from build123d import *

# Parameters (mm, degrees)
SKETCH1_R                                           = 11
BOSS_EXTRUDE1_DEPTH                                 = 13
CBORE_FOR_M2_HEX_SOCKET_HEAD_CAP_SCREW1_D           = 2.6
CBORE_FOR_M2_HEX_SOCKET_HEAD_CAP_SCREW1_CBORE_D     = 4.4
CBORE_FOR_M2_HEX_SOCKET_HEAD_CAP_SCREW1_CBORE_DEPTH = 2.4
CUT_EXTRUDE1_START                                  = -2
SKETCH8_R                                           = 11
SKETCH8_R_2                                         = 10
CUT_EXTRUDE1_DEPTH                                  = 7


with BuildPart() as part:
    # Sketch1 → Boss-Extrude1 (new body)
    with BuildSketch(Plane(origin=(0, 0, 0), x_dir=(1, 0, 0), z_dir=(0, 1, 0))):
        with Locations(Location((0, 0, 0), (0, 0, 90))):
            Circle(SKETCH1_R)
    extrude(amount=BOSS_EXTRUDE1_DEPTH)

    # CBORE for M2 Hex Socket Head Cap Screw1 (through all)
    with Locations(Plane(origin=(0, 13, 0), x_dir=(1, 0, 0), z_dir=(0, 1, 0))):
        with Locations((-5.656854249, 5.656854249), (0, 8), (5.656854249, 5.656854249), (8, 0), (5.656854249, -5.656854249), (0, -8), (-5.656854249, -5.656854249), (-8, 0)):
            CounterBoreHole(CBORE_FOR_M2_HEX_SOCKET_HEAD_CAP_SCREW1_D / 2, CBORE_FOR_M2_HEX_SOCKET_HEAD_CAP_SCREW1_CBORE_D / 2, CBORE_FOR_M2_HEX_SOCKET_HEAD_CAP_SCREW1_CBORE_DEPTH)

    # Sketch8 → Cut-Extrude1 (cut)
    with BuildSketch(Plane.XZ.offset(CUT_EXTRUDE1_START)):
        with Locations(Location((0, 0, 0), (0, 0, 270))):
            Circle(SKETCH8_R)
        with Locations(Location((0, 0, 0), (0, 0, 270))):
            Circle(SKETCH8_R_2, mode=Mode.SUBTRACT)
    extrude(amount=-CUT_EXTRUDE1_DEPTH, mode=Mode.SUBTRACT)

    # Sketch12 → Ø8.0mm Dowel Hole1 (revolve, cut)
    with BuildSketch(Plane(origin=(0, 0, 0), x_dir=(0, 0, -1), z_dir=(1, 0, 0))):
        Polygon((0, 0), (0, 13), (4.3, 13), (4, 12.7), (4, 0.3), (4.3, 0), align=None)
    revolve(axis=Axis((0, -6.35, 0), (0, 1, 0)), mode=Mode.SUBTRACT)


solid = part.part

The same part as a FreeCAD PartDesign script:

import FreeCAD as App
import Part
import Sketcher


def add_polygon(sketch, points):
    """Adds a closed chain of lines whose ends are joined by coincident constraints."""
    first, n = sketch.GeometryCount, len(points)
    for a, b in zip(points, points[1:] + points[:1]):
        sketch.addGeometry(Part.LineSegment(App.Vector(*a, 0), App.Vector(*b, 0)), False)
    for i in range(n):
        sketch.addConstraint(Sketcher.Constraint("Coincident", first + i, 2, first + (i + 1) % n, 1))

doc = App.newDocument("Part")
params = doc.addObject("Spreadsheet::Sheet", "Params")
for row, (alias, value) in enumerate([
    ("sketch1_diameter", "22 mm"),
    ("pad1_length", "13 mm"),
    ("sketch2_diameter", "2.6 mm"),
    ("hole_diameter", "2.6 mm"),
    ("hole_cbore_diameter", "4.4 mm"),
    ("hole_cbore_depth", "2.4 mm"),
    ("sketch3_diameter", "22 mm"),
    ("sketch3_diameter2", "20 mm"),
    ("pocket1_length", "7 mm"),
    ("sketch4_width", "13 mm"),
    ("sketch4_width2", "12.4 mm"),
    ("sketch4_height", "4.3 mm"),
    ("groove_angle", "360 deg"),
], start=1):
    params.set(f"A{row}", alias)
    params.set(f"B{row}", "=" + value)
    params.setAlias(f"B{row}", alias)

body = doc.addObject("PartDesign::Body", "Body")

# Sketch on XZ plane
sketch1 = body.newObject("Sketcher::SketchObject", "Sketch")
sketch1.AttachmentSupport = (doc.getObject("XZ_Plane"), [""])
sketch1.MapMode = "FlatFace"
sketch1.addGeometry(Part.Circle(App.Vector(0, 0, 0), App.Vector(0, 0, 1), 11), False)
sketch1.addConstraint([
    Sketcher.Constraint("Coincident", 0, 3, -1, 1),
    Sketcher.Constraint("Diameter", 0, 22.0),
])
sketch1.setExpression("Constraints[1]", "Params.sketch1_diameter")
pad1 = body.newObject("PartDesign::Pad", "Pad")
pad1.Profile = sketch1
pad1.setExpression("Length", "Params.pad1_length")
pad1.Reversed = True

# Sketch on XZ plane
sketch2 = body.newObject("Sketcher::SketchObject", "Sketch001")
sketch2.AttachmentSupport = (doc.getObject("XZ_Plane"), [""])
sketch2.MapMode = "FlatFace"
sketch2.AttachmentOffset = App.Placement(App.Vector(0, 0, -13), App.Rotation())
sketch2.addGeometry([
    Part.Circle(App.Vector(-5.7, -5.7, 0), App.Vector(0, 0, 1), 1.3),  # 0
    Part.Circle(App.Vector(0, -8, 0), App.Vector(0, 0, 1), 1.3),  # 1
    Part.Circle(App.Vector(5.7, -5.7, 0), App.Vector(0, 0, 1), 1.3),  # 2
    Part.Circle(App.Vector(8, 0, 0), App.Vector(0, 0, 1), 1.3),  # 3
    Part.Circle(App.Vector(5.7, 5.7, 0), App.Vector(0, 0, 1), 1.3),  # 4
    Part.Circle(App.Vector(0, 8, 0), App.Vector(0, 0, 1), 1.3),  # 5
    Part.Circle(App.Vector(-5.7, 5.7, 0), App.Vector(0, 0, 1), 1.3),  # 6
    Part.Circle(App.Vector(-8, 0, 0), App.Vector(0, 0, 1), 1.3),  # 7
], False)
sketch2.addConstraint([
    Sketcher.Constraint("Equal", 0, 1),
    Sketcher.Constraint("Equal", 1, 2),
    Sketcher.Constraint("Equal", 2, 3),
    Sketcher.Constraint("Equal", 3, 4),
    Sketcher.Constraint("Equal", 4, 5),
    Sketcher.Constraint("Equal", 5, 6),
    Sketcher.Constraint("Equal", 6, 7),
    Sketcher.Constraint("Symmetric", 0, 3, 4, 3, -1, 1),
    Sketcher.Constraint("Symmetric", 1, 3, 5, 3, -1, 1),
    Sketcher.Constraint("Symmetric", 2, 3, 6, 3, -1, 1),
    Sketcher.Constraint("Symmetric", 3, 3, 7, 3, -1, 1),
    Sketcher.Constraint("Symmetric", 0, 3, 2, 3, -2),
    Sketcher.Constraint("PointOnObject", 1, 3, -2),
    Sketcher.Constraint("PointOnObject", 3, 3, -1),
    Sketcher.Constraint("Diameter", 0, 2.6),
    Sketcher.Constraint("DistanceY", 1, 3, -1, 1, 8.0),
    Sketcher.Constraint("DistanceX", -1, 1, 3, 3, 8.0),
    Sketcher.Constraint("DistanceX", 0, 3, 2, 3, 11.313708),
    Sketcher.Constraint("DistanceY", 2, 3, 4, 3, 11.313708),
])
sketch2.setExpression("Constraints[14]", "Params.sketch2_diameter")
doc.recompute()
hole = body.newObject("PartDesign::Hole", "Hole")
hole.Profile = sketch2
hole.ThreadType = "None"
hole.setExpression("Diameter", "Params.hole_diameter")
hole.DepthType = "ThroughAll"
hole.HoleCutType = "Counterbore"
hole.setExpression("HoleCutDiameter", "Params.hole_cbore_diameter")
hole.setExpression("HoleCutDepth", "Params.hole_cbore_depth")
hole.Reversed = True

# Sketch on XZ plane
sketch3 = body.newObject("Sketcher::SketchObject", "Sketch002")
sketch3.AttachmentSupport = (doc.getObject("XZ_Plane"), [""])
sketch3.MapMode = "FlatFace"
sketch3.AttachmentOffset = App.Placement(App.Vector(0, 0, -2), App.Rotation())
sketch3.addGeometry([
    Part.Circle(App.Vector(0, 0, 0), App.Vector(0, 0, 1), 11),
    Part.Circle(App.Vector(0, 0, 0), App.Vector(0, 0, 1), 10),
], False)
sketch3.addConstraint([
    Sketcher.Constraint("Coincident", 0, 3, -1, 1),
    Sketcher.Constraint("Coincident", 1, 3, -1, 1),
    Sketcher.Constraint("Diameter", 0, 22.0),
    Sketcher.Constraint("Diameter", 1, 20.0),
])
sketch3.setExpression("Constraints[2]", "Params.sketch3_diameter")
sketch3.setExpression("Constraints[3]", "Params.sketch3_diameter2")
pocket1 = body.newObject("PartDesign::Pocket", "Pocket")
pocket1.Profile = sketch3
pocket1.setExpression("Length", "Params.pocket1_length")

# Sketch on YZ plane
sketch4 = body.newObject("Sketcher::SketchObject", "Sketch003")
sketch4.AttachmentSupport = (doc.getObject("YZ_Plane"), [""])
sketch4.MapMode = "FlatFace"
add_polygon(sketch4, [(13, 0), (0, 0), (0, -4.3), (0.3, -4), (12.7, -4), (13, -4.3)])  # lines 0-5
sketch4.addConstraint([
    Sketcher.Constraint("Horizontal", 0),
    Sketcher.Constraint("Vertical", 1),
    Sketcher.Constraint("Horizontal", 3),
    Sketcher.Constraint("Vertical", 5),
    Sketcher.Constraint("Coincident", 0, 2, -1, 1),
    Sketcher.Constraint("Perpendicular", 2, 4),
    Sketcher.Constraint("Horizontal", 1, 2, 4, 2),
    Sketcher.Constraint("Equal", 2, 4),
    Sketcher.Constraint("DistanceX", 0, 2, 0, 1, 13.0),
    Sketcher.Constraint("DistanceX", 3, 1, 3, 2, 12.4),
    Sketcher.Constraint("DistanceY", 1, 2, 1, 1, 4.3),
])
sketch4.setExpression("Constraints[14]", "Params.sketch4_width")
sketch4.setExpression("Constraints[15]", "Params.sketch4_width2")
sketch4.setExpression("Constraints[16]", "Params.sketch4_height")
groove = body.newObject("PartDesign::Groove", "Groove")
groove.Profile = sketch4
groove.ReferenceAxis = (sketch4, ["H_Axis"])
groove.setExpression("Angle", "Params.groove_angle")

doc.recompute()
